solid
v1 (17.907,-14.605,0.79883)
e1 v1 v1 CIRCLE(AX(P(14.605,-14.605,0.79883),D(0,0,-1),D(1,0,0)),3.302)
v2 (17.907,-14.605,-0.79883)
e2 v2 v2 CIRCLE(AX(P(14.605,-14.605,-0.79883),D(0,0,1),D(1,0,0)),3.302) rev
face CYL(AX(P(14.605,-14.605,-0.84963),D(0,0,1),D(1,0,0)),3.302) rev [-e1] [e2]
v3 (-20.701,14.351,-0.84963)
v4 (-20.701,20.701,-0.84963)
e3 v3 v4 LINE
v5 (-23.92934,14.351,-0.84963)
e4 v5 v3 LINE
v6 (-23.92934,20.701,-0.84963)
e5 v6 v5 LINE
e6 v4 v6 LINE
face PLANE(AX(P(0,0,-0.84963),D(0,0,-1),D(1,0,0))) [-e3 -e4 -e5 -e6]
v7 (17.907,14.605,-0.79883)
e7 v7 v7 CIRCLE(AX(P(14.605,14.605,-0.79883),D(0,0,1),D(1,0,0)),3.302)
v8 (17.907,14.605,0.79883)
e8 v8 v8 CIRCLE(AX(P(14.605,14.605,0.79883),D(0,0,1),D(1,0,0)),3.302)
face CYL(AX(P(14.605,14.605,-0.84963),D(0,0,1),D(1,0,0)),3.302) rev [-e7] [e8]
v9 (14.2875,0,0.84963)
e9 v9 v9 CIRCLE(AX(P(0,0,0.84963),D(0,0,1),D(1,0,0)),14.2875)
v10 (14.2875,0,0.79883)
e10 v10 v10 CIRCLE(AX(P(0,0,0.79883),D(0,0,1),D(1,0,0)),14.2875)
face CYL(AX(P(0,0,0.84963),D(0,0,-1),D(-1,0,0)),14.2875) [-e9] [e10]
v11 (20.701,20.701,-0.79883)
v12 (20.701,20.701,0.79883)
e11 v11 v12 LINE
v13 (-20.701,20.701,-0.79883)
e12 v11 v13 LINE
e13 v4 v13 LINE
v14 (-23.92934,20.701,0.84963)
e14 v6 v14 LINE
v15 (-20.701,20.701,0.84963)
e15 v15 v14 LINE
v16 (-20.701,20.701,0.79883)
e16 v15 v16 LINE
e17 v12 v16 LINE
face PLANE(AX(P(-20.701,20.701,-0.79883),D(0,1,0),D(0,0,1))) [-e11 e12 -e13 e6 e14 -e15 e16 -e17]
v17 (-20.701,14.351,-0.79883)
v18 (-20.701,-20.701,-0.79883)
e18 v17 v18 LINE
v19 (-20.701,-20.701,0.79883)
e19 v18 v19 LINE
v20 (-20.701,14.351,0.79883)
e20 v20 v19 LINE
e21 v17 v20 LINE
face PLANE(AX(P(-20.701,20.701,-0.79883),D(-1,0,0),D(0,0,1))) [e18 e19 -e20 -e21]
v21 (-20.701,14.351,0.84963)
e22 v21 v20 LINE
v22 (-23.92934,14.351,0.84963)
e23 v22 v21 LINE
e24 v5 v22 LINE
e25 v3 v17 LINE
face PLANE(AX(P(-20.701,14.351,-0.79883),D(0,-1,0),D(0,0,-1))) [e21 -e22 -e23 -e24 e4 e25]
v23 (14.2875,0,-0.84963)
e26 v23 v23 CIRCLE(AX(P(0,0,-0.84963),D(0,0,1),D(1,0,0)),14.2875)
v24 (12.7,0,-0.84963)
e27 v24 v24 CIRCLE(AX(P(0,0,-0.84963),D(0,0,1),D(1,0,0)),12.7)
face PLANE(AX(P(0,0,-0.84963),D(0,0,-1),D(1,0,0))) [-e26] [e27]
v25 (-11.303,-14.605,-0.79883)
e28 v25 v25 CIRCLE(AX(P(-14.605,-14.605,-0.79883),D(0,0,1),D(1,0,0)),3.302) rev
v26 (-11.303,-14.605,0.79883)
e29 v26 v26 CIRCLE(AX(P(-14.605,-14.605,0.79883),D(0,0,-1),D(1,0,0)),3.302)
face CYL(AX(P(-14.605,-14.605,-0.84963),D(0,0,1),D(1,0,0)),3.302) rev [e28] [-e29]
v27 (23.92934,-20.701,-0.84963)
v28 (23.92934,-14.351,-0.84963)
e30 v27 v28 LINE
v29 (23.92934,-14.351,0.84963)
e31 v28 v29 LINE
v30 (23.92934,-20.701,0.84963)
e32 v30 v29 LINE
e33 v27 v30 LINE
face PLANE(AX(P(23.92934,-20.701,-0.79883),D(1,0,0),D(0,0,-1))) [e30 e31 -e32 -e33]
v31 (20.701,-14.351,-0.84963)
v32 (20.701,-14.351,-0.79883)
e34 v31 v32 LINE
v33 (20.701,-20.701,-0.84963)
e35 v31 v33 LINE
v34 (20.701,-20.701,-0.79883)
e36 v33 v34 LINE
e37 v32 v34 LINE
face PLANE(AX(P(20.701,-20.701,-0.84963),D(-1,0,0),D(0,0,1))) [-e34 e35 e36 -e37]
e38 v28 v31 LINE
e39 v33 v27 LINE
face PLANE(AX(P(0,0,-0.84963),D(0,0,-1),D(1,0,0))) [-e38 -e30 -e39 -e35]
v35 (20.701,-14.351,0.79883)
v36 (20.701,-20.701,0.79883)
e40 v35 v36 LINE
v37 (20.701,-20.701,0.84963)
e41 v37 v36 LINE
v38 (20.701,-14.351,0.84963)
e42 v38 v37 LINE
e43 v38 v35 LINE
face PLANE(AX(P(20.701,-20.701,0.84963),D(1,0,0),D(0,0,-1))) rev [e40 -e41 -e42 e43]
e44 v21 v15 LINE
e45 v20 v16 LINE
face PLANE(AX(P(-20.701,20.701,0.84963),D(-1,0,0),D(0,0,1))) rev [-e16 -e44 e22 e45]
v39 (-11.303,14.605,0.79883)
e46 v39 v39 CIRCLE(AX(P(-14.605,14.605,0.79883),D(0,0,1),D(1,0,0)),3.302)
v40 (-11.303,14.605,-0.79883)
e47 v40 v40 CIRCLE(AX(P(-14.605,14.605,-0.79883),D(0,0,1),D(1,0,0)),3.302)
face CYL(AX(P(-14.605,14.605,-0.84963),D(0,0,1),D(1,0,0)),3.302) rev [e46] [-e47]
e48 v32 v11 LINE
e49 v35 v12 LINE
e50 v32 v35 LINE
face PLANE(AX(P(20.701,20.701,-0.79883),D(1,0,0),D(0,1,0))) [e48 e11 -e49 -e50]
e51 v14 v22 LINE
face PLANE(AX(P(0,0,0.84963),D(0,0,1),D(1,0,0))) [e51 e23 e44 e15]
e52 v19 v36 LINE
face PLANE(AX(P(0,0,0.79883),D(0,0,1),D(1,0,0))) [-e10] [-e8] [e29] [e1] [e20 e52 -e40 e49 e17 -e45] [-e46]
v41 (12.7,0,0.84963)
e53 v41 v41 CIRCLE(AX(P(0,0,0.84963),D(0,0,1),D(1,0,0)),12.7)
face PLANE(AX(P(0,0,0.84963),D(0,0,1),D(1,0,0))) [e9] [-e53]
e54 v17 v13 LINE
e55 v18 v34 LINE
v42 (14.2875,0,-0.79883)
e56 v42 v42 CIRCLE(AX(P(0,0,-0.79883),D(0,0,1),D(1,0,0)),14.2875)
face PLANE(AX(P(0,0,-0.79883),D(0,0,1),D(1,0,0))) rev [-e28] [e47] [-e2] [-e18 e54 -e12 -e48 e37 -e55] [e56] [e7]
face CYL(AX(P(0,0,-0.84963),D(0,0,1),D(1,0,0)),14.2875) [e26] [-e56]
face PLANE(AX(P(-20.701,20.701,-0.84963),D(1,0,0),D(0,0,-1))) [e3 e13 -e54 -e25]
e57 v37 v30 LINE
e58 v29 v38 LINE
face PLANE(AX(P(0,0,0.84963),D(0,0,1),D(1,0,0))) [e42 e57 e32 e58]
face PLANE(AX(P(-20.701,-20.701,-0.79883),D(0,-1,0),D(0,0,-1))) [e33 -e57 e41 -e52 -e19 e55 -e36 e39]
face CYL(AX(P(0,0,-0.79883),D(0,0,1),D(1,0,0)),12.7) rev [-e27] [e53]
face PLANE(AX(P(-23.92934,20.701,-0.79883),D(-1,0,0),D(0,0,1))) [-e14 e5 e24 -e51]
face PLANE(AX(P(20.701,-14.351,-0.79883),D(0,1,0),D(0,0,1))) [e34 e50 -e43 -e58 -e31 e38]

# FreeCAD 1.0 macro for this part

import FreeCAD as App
import Part
import Sketcher

V = App.Vector
Q = App.Units.Quantity


def add_polygon(sketch, points):
    """Adds a closed chain of lines whose ends are joined by coincident constraints."""
    first, n = sketch.GeometryCount, len(points)
    for a, b in zip(points, points[1:] + points[:1]):
        sketch.addGeometry(Part.LineSegment(App.Vector(*a, 0), App.Vector(*b, 0)), False)
    for i in range(n):
        sketch.addConstraint(Sketcher.Constraint("Coincident", first + i, 2, first + (i + 1) % n, 1))

doc = App.newDocument("Part")
params = doc.addObject("Spreadsheet::Sheet", "Params")
for row, (alias, value) in enumerate([
    ("sketch1_width", "1.63 in"),
    ("pad1_length", "0.79883 mm"),
    ("pad1_length2", "0.79883 mm"),
    ("sketch2_height", "0.25 in"),
    ("pad2_length", "0.79883 mm"),
    ("pad2_length2", "0.79883 mm"),
    ("sketch3_diameter", "1 in"),
    ("sketch4_diameter", "1 in"),
    ("sketch4_diameter2", "1.125 in"),
    ("pad3_length", "0.002 in"),
    ("sketch5_height", "0.25 in"),
    ("pad4_length", "0.002 in"),
    ("sketch6_diameter", "0.26 in"),
], start=1):
    params.set(f"A{row}", alias)
    params.set(f"B{row}", "=" + value)
    params.setAlias(f"B{row}", alias)

body = doc.addObject("PartDesign::Body", "Body")

sketch1 = doc.addObject("Sketcher::SketchObject", "Sketch")
body.addObject(sketch1)
sketch1.AttachmentSupport = (doc.XY_Plane, [""])
sketch1.MapMode = "FlatFace"
add_polygon(sketch1, [(-21, 21), (-21, -21), (21, -21), (21, 21)])
sketch1.addConstraint([
    Sketcher.Constraint("Vertical", 0),
    Sketcher.Constraint("Horizontal", 1),
    Sketcher.Constraint("Vertical", 2),
    Sketcher.Constraint("Horizontal", 3),
    Sketcher.Constraint("Symmetric", 0, 2, 2, 2, -1, 1),
    Sketcher.Constraint("Equal", 3, 0),
    Sketcher.Constraint("DistanceX", 1, 1, 1, 2, Q("1.63 in")),
])
sketch1.setExpression("Constraints[10]", "Params.sketch1_width")
pad1 = doc.addObject("PartDesign::Pad", "Pad")
body.addObject(pad1)
pad1.Profile = sketch1
pad1.Type = "TwoLengths"
pad1.setExpression("Length", "Params.pad1_length")
pad1.setExpression("Length2", "Params.pad1_length2")

sketch2 = doc.addObject("Sketcher::SketchObject", "Sketch001")
body.addObject(sketch2)
sketch2.AttachmentSupport = (doc.XY_Plane, [""])
sketch2.MapMode = "FlatFace"
add_polygon(sketch2, [(-23.9, 20.7), (-23.9, 14.4), (-20.7, 14.4), (-20.7, 20.7)])
add_polygon(sketch2, [(20.7, -14.4), (20.7, -20.7), (23.9, -20.7), (23.9, -14.4)])
sketch2.addConstraint([
    Sketcher.Constraint("Vertical", 0),
    Sketcher.Constraint("Horizontal", 1),
    Sketcher.Constraint("Vertical", 2),
    Sketcher.Constraint("Horizontal", 3),
    Sketcher.Constraint("Vertical", 4),
    Sketcher.Constraint("Horizontal", 5),
    Sketcher.Constraint("Vertical", 6),
    Sketcher.Constraint("Horizontal", 7),
    Sketcher.Constraint("Symmetric", 2, 2, 4, 2, -1, 1),
    Sketcher.Constraint("Symmetric", 0, 2, 6, 2, -1, 1),
    Sketcher.Constraint("DistanceY", 0, 2, 0, 1, Q("0.25 in")),
    Sketcher.Constraint("DistanceX", 1, 2, 4, 2, Q("1.63 in")),
    Sketcher.Constraint("DistanceY", 4, 2, 1, 2, Q("1.38 in")),
    Sketcher.Constraint("DistanceX", 1, 1, 1, 2, Q("0.1271 in")),
])
sketch2.setExpression("Constraints[18]", "Params.sketch2_height")
pad2 = doc.addObject("PartDesign::Pad", "Pad001")
body.addObject(pad2)
pad2.Profile = sketch2
pad2.Type = "TwoLengths"
pad2.setExpression("Length", "Params.pad2_length")
pad2.setExpression("Length2", "Params.pad2_length2")

sketch3 = doc.addObject("Sketcher::SketchObject", "Sketch002")
body.addObject(sketch3)
sketch3.AttachmentSupport = (doc.XY_Plane, [""])
sketch3.MapMode = "FlatFace"
sketch3.AttachmentOffset = App.Placement(V(0, 0, 0.79883), App.Rotation())
sketch3.addGeometry(Part.Circle(V(0, 0, 0), V(0, 0, 1), 13), False)
sketch3.addConstraint([
    Sketcher.Constraint("Coincident", 0, 3, -1, 1),
    Sketcher.Constraint("Diameter", 0, Q("1 in")),
])
sketch3.setExpression("Constraints[1]", "Params.sketch3_diameter")
pocket1 = doc.addObject("PartDesign::Pocket", "Pocket")
body.addObject(pocket1)
pocket1.Profile = sketch3
pocket1.Type = "ThroughAll"

sketch4 = doc.addObject("Sketcher::SketchObject", "Sketch003")
body.addObject(sketch4)
sketch4.AttachmentSupport = (doc.XY_Plane, [""])
sketch4.MapMode = "FlatFace"
sketch4.AttachmentOffset = App.Placement(V(0, 0, 0.79883), App.Rotation())
sketch4.addGeometry([
    Part.Circle(V(0, 0, 0), V(0, 0, 1), 14),
    Part.Circle(V(0, 0, 0), V(0, 0, 1), 13),
], False)
sketch4.addConstraint([
    Sketcher.Constraint("Coincident", 0, 3, -1, 1),
    Sketcher.Constraint("Coincident", 1, 3, -1, 1),
    Sketcher.Constraint("Diameter", 1, Q("1 in")),
    Sketcher.Constraint("Diameter", 0, Q("1.125 in")),
])
sketch4.setExpression("Constraints[2]", "Params.sketch4_diameter")
sketch4.setExpression("Constraints[3]", "Params.sketch4_diameter2")
pad3 = doc.addObject("PartDesign::Pad", "Pad002")
body.addObject(pad3)
pad3.Profile = sketch4
pad3.setExpression("Length", "Params.pad3_length")

sketch5 = doc.addObject("Sketcher::SketchObject", "Sketch004")
body.addObject(sketch5)
sketch5.AttachmentSupport = (doc.XY_Plane, [""])
sketch5.MapMode = "FlatFace"
sketch5.AttachmentOffset = App.Placement(V(0, 0, 0.79883), App.Rotation())
add_polygon(sketch5, [(-23.9, 20.7), (-23.9, 14.4), (-20.7, 14.4), (-20.7, 20.7)])
add_polygon(sketch5, [(20.7, -14.4), (20.7, -20.7), (23.9, -20.7), (23.9, -14.4)])
sketch5.addConstraint([
    Sketcher.Constraint("Vertical", 0),
    Sketcher.Constraint("Horizontal", 1),
    Sketcher.Constraint("Vertical", 2),
    Sketcher.Constraint("Horizontal", 3),
    Sketcher.Constraint("Vertical", 4),
    Sketcher.Constraint("Horizontal", 5),
    Sketcher.Constraint("Vertical", 6),
    Sketcher.Constraint("Horizontal", 7),
    Sketcher.Constraint("Symmetric", 2, 2, 4, 2, -1, 1),
    Sketcher.Constraint("Symmetric", 0, 2, 6, 2, -1, 1),
    Sketcher.Constraint("DistanceY", 0, 2, 0, 1, Q("0.25 in")),
    Sketcher.Constraint("DistanceX", 1, 2, 4, 2, Q("1.63 in")),
    Sketcher.Constraint("DistanceY", 4, 2, 1, 2, Q("1.38 in")),
    Sketcher.Constraint("DistanceX", 1, 1, 1, 2, Q("0.1271 in")),
])
sketch5.setExpression("Constraints[18]", "Params.sketch5_height")
pad4 = doc.addObject("PartDesign::Pad", "Pad003")
body.addObject(pad4)
pad4.Profile = sketch5
pad4.setExpression("Length", "Params.pad4_length")
doc.recompute()

mirrored = doc.addObject("PartDesign::Mirrored", "Mirrored")
body.addObject(mirrored)
mirrored.Originals = [pad3, pad4]
mirrored.MirrorPlane = (doc.XY_Plane, [""])
body.Tip = mirrored

sketch6 = doc.addObject("Sketcher::SketchObject", "Sketch005")
body.addObject(sketch6)
sketch6.AttachmentSupport = (doc.XY_Plane, [""])
sketch6.MapMode = "FlatFace"
sketch6.AttachmentOffset = App.Placement(V(0, 0, 0.79883), App.Rotation())
sketch6.addGeometry([
    Part.Circle(V(-14.6, 14.6, 0), V(0, 0, 1), 3.3),
    Part.Circle(V(14.6, 14.6, 0), V(0, 0, 1), 3.3),
], False)
sketch6.addConstraint([
    Sketcher.Constraint("Equal", 0, 1),
    Sketcher.Constraint("Symmetric", 0, 3, 1, 3, -2),
    Sketcher.Constraint("Diameter", 0, Q("0.26 in")),
    Sketcher.Constraint("DistanceX", 0, 3, 1, 3, Q("1.15 in")),
    Sketcher.Constraint("DistanceY", -1, 1, 0, 3, Q("0.575 in")),
])
sketch6.setExpression("Constraints[2]", "Params.sketch6_diameter")
pocket2 = doc.addObject("PartDesign::Pocket", "Pocket001")
body.addObject(pocket2)
pocket2.Profile = sketch6
pocket2.Type = "ThroughAll"
doc.recompute()

mirrored2 = doc.addObject("PartDesign::Mirrored", "Mirrored001")
body.addObject(mirrored2)
mirrored2.Originals = [pocket2]
mirrored2.MirrorPlane = (doc.XZ_Plane, [""])
body.Tip = mirrored2

doc.recompute()
